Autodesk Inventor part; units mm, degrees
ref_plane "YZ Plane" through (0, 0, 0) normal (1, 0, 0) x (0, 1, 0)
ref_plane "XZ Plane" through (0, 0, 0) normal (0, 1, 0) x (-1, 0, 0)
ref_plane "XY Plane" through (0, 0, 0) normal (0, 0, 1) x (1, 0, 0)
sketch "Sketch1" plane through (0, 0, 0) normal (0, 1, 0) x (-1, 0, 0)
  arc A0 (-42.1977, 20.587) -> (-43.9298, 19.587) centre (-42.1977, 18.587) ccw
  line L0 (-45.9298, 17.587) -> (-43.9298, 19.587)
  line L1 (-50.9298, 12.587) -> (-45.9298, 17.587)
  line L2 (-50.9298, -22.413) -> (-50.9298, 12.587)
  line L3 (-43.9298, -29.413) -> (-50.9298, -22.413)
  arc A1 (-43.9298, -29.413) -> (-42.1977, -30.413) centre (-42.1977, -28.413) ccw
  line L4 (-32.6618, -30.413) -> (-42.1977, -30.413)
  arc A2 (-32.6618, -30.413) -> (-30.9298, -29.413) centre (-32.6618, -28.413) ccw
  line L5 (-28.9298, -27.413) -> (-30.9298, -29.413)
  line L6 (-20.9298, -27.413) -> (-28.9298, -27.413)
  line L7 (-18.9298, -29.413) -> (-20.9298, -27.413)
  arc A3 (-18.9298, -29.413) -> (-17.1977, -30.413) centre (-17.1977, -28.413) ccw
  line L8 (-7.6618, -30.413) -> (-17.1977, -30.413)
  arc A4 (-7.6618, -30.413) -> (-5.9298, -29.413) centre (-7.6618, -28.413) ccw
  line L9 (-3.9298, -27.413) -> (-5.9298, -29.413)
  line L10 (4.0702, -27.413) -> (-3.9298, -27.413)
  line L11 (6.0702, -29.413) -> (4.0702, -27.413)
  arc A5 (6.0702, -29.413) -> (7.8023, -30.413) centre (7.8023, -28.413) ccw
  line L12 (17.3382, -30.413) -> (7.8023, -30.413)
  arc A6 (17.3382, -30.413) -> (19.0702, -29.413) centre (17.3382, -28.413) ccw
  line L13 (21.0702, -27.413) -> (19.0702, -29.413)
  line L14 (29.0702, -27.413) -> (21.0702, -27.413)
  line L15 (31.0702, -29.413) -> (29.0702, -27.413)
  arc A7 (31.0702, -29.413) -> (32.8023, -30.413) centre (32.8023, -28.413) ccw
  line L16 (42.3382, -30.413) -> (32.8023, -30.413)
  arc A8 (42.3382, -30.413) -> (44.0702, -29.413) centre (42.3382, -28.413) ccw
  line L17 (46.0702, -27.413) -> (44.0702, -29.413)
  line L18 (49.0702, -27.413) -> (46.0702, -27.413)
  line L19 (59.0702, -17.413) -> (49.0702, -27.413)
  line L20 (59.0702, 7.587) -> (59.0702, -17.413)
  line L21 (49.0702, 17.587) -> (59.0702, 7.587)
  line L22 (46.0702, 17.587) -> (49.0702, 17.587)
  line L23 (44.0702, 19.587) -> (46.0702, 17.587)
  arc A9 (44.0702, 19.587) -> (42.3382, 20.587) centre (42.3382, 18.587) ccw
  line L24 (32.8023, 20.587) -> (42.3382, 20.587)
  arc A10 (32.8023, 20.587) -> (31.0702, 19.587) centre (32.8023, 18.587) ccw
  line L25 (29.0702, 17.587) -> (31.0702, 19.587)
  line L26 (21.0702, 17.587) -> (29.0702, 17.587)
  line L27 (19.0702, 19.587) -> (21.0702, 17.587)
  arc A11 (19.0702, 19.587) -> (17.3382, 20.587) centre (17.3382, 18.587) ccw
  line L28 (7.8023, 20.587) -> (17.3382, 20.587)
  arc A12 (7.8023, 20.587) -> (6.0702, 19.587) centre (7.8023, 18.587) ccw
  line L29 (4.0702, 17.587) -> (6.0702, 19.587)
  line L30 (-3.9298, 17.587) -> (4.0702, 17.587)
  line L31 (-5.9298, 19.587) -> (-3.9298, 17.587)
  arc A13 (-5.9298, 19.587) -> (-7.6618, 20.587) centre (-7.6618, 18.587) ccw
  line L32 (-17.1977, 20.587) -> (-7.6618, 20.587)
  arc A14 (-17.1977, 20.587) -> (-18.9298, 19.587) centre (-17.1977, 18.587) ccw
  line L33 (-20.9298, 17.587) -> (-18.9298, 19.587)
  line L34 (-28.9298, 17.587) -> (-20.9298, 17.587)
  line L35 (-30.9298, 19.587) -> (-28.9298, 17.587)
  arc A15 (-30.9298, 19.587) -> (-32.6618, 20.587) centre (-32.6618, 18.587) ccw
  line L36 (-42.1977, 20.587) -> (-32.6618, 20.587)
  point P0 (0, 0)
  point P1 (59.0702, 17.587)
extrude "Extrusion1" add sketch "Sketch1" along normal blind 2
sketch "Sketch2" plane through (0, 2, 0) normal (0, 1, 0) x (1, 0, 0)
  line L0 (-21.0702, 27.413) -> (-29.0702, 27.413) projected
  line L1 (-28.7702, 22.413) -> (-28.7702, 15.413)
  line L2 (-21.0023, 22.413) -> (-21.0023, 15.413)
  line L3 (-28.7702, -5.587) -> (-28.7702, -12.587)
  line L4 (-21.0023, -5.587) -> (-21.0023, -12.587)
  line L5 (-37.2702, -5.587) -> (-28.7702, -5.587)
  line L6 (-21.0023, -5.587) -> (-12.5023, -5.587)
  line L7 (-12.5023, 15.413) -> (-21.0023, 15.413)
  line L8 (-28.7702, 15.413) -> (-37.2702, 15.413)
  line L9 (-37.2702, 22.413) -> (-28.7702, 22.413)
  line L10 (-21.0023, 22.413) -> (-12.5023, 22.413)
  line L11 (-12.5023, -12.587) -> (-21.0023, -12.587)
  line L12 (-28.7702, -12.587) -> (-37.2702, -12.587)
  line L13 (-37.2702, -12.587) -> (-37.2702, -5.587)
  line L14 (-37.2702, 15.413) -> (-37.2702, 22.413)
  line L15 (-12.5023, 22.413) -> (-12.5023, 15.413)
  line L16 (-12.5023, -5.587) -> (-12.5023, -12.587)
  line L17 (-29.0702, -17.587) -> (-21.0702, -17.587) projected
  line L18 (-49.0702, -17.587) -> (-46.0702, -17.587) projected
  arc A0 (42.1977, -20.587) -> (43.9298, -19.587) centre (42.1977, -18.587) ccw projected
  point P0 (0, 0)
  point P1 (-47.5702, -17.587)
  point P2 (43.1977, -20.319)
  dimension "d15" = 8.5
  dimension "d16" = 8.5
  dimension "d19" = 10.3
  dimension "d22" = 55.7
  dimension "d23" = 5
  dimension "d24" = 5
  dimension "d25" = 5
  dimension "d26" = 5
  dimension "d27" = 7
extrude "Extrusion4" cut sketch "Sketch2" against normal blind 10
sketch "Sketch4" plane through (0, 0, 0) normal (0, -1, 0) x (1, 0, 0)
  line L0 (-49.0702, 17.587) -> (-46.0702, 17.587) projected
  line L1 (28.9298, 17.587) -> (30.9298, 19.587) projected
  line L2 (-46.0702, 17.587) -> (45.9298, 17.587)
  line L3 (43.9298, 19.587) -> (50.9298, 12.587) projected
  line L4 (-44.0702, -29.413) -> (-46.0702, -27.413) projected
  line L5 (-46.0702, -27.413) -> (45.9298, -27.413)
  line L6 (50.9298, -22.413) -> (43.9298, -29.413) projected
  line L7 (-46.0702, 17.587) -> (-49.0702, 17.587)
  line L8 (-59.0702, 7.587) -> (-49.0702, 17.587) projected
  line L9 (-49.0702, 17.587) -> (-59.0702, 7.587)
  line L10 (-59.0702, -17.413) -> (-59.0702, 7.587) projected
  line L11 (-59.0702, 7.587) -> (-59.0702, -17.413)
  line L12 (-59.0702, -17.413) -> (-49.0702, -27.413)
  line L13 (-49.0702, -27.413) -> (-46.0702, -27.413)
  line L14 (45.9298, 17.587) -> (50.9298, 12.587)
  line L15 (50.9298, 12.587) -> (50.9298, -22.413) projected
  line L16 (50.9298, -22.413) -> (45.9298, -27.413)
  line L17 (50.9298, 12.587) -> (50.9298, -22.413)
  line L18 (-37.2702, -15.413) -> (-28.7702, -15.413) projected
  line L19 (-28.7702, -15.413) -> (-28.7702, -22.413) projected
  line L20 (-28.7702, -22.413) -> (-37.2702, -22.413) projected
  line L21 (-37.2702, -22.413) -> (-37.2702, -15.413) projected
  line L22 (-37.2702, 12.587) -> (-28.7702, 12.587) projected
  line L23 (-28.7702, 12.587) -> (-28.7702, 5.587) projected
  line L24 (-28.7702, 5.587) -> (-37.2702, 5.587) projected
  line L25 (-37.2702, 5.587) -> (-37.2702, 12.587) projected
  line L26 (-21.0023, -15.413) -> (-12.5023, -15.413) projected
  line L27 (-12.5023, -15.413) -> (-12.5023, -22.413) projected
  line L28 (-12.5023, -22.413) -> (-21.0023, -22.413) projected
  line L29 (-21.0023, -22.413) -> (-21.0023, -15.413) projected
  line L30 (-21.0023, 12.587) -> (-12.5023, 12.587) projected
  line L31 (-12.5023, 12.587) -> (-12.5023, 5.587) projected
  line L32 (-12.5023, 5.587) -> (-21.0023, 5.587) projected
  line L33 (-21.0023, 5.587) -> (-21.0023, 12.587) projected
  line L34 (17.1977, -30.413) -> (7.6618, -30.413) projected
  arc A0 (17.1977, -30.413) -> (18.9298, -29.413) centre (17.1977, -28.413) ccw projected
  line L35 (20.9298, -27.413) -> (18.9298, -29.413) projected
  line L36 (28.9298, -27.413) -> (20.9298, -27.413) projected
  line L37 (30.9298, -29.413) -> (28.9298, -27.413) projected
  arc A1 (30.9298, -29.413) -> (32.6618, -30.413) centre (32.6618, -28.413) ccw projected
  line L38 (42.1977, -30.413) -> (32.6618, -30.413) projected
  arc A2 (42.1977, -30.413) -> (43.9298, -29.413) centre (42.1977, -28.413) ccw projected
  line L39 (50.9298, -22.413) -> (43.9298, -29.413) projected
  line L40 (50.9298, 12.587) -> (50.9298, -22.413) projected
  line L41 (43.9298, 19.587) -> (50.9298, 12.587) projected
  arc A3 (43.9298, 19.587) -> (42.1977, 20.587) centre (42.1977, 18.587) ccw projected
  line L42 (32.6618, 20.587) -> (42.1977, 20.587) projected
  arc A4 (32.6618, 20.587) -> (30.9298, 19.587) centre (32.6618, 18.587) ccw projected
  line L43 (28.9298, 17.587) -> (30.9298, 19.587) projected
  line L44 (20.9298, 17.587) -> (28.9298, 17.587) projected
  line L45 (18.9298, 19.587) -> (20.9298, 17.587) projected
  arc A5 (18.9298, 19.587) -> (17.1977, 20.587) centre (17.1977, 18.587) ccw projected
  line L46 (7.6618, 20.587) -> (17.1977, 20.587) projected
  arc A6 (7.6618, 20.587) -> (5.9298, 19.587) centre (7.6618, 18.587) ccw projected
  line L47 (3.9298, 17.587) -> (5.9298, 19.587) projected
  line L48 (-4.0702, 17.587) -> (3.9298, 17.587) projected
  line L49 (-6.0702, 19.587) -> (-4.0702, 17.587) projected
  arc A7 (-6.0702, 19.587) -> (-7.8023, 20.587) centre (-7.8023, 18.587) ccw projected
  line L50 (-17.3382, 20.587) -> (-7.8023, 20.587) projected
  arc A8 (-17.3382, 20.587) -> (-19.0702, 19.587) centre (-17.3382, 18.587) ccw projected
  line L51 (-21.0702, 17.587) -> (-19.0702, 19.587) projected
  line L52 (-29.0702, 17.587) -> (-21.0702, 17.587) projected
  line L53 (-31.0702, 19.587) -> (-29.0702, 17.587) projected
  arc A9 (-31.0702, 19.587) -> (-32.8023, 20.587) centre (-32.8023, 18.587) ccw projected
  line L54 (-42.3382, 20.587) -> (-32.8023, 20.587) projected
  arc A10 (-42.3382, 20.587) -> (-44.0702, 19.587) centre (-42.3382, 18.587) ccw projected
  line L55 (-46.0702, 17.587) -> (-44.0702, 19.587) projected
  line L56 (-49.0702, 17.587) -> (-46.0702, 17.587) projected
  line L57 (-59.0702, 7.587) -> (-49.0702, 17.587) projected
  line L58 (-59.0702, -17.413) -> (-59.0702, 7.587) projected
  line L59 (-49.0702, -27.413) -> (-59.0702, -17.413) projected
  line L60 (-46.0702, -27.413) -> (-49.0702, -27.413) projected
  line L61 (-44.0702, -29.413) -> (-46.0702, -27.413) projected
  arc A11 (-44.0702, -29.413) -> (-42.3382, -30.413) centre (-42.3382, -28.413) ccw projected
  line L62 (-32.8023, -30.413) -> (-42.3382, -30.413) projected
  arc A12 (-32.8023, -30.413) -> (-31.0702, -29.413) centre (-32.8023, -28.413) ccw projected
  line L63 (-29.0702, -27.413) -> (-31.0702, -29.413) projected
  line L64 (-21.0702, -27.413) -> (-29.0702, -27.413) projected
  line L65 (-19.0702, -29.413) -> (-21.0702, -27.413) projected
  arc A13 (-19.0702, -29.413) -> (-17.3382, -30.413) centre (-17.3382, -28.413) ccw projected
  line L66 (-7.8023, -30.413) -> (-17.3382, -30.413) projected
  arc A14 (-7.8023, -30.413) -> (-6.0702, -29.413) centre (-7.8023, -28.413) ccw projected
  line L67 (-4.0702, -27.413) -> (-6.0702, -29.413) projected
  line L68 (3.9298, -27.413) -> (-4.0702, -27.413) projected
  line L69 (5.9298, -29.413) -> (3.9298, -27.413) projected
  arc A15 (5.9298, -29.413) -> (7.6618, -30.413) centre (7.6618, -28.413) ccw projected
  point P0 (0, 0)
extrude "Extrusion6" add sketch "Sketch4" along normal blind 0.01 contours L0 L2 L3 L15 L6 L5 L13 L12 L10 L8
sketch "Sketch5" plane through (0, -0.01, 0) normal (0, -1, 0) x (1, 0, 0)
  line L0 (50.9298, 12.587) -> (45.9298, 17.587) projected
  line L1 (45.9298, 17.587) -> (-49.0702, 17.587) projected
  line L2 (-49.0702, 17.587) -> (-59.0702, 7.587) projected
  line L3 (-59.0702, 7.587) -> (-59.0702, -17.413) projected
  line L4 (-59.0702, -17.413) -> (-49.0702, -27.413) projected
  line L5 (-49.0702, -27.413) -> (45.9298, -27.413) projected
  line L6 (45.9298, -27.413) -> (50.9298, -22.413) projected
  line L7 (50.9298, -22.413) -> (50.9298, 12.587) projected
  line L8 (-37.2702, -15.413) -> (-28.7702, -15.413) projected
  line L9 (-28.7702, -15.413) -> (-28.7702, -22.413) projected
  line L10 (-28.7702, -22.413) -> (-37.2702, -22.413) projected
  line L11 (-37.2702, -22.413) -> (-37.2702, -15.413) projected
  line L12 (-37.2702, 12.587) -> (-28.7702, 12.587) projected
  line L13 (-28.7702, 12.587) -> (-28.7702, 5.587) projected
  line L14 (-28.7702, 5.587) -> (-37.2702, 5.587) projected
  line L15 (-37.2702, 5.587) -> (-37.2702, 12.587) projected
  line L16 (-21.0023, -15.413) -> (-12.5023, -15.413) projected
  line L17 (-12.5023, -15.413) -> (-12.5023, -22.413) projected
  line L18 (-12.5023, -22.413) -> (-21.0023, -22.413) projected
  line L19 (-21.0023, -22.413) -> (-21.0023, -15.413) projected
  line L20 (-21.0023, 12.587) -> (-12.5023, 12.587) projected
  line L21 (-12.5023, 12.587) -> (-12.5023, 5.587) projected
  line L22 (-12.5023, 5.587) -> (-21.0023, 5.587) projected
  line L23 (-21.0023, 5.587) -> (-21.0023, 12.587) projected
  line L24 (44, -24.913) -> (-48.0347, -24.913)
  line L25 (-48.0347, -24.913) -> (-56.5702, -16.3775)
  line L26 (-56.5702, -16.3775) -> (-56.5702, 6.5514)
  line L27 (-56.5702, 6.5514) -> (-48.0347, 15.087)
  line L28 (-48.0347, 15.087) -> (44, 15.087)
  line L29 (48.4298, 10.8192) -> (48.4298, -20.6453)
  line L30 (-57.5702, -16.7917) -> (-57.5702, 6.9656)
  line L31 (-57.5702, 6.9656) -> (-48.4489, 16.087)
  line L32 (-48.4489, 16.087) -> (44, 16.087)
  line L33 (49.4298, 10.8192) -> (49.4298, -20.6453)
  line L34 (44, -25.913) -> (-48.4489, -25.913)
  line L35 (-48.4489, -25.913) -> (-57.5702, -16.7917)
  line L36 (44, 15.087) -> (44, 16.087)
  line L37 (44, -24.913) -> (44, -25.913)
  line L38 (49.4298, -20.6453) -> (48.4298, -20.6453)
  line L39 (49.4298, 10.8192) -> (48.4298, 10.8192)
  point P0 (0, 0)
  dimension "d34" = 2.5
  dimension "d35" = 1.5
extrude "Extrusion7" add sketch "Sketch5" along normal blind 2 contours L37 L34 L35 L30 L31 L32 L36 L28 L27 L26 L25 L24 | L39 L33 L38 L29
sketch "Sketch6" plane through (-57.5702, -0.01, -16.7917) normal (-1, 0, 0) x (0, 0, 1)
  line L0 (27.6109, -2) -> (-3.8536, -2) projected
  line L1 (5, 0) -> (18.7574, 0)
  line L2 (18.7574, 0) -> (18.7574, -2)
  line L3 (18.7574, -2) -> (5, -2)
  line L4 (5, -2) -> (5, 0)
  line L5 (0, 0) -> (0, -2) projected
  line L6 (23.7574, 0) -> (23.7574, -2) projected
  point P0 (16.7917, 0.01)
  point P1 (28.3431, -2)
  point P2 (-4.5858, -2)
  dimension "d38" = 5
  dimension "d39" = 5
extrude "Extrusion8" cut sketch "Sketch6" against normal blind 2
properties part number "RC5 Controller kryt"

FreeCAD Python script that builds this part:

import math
import FreeCAD as App
import Part
import Sketcher
from FreeCAD import Vector
Q = App.Units.Quantity


def add_polygon(sketch, points):
    """Adds a closed chain of lines whose ends are joined by coincident constraints."""
    first, n = sketch.GeometryCount, len(points)
    for a, b in zip(points, points[1:] + points[:1]):
        sketch.addGeometry(Part.LineSegment(App.Vector(*a, 0), App.Vector(*b, 0)), False)
    for i in range(n):
        sketch.addConstraint(Sketcher.Constraint("Coincident", first + i, 2, first + (i + 1) % n, 1))

doc = App.newDocument("Part")
body = doc.addObject("PartDesign::Body", "Body")

sketch1 = body.newObject("Sketcher::SketchObject", "Sketch")
sketch1.AttachmentSupport = (doc.getObject("XZ_Plane"), [""])
sketch1.MapMode = "FlatFace"
sketch1.addGeometry(Part.LineSegment(Vector(32.7, 20.6, 0), Vector(42.2, 20.6, 0)), False)
sketch1.addGeometry(Part.ArcOfCircle(Part.Circle(Vector(42.2, 18.6, 0), Vector(0, 0, 1), 2), math.radians(30), math.radians(90)), False)
sketch1.addGeometry(Part.LineSegment(Vector(43.9, 19.6, 0), Vector(50.9, 12.6, 0)), False)
sketch1.addGeometry(Part.LineSegment(Vector(50.9, 12.6, 0), Vector(50.9, -22.4, 0)), False)
sketch1.addGeometry(Part.LineSegment(Vector(50.9, -22.4, 0), Vector(43.9, -29.4, 0)), False)
sketch1.addGeometry(Part.ArcOfCircle(Part.Circle(Vector(42.2, -28.4, 0), Vector(0, 0, 1), 2), math.radians(-90), math.radians(-30)), False)
sketch1.addGeometry(Part.LineSegment(Vector(42.2, -30.4, 0), Vector(32.7, -30.4, 0)), False)
sketch1.addGeometry(Part.ArcOfCircle(Part.Circle(Vector(32.7, -28.4, 0), Vector(0, 0, 1), 2), math.radians(-150), math.radians(-90)), False)
sketch1.addGeometry(Part.LineSegment(Vector(30.9, -29.4, 0), Vector(28.9, -27.4, 0)), False)
sketch1.addGeometry(Part.LineSegment(Vector(28.9, -27.4, 0), Vector(20.9, -27.4, 0)), False)
sketch1.addGeometry(Part.LineSegment(Vector(20.9, -27.4, 0), Vector(18.9, -29.4, 0)), False)
sketch1.addGeometry(Part.ArcOfCircle(Part.Circle(Vector(17.2, -28.4, 0), Vector(0, 0, 1), 2), math.radians(-90), math.radians(-30)), False)
sketch1.addGeometry(Part.LineSegment(Vector(17.2, -30.4, 0), Vector(7.7, -30.4, 0)), False)
sketch1.addGeometry(Part.ArcOfCircle(Part.Circle(Vector(7.7, -28.4, 0), Vector(0, 0, 1), 2), math.radians(-150), math.radians(-90)), False)
sketch1.addGeometry(Part.LineSegment(Vector(5.9, -29.4, 0), Vector(3.9, -27.4, 0)), False)
sketch1.addGeometry(Part.LineSegment(Vector(3.9, -27.4, 0), Vector(-4.1, -27.4, 0)), False)
sketch1.addGeometry(Part.LineSegment(Vector(-4.1, -27.4, 0), Vector(-6.1, -29.4, 0)), False)
sketch1.addGeometry(Part.ArcOfCircle(Part.Circle(Vector(-7.8, -28.4, 0), Vector(0, 0, 1), 2), math.radians(-90), math.radians(-30)), False)
sketch1.addGeometry(Part.LineSegment(Vector(-7.8, -30.4, 0), Vector(-17.3, -30.4, 0)), False)
sketch1.addGeometry(Part.ArcOfCircle(Part.Circle(Vector(-17.3, -28.4, 0), Vector(0, 0, 1), 2), math.radians(-150), math.radians(-90)), False)
sketch1.addGeometry(Part.LineSegment(Vector(-19.1, -29.4, 0), Vector(-21.1, -27.4, 0)), False)
sketch1.addGeometry(Part.LineSegment(Vector(-21.1, -27.4, 0), Vector(-29.1, -27.4, 0)), False)
sketch1.addGeometry(Part.LineSegment(Vector(-29.1, -27.4, 0), Vector(-31.1, -29.4, 0)), False)
sketch1.addGeometry(Part.ArcOfCircle(Part.Circle(Vector(-32.8, -28.4, 0), Vector(0, 0, 1), 2), math.radians(-90), math.radians(-30)), False)
sketch1.addGeometry(Part.LineSegment(Vector(-32.8, -30.4, 0), Vector(-42.3, -30.4, 0)), False)
sketch1.addGeometry(Part.ArcOfCircle(Part.Circle(Vector(-42.3, -28.4, 0), Vector(0, 0, 1), 2), math.radians(-150), math.radians(-90)), False)
sketch1.addGeometry(Part.LineSegment(Vector(-44.1, -29.4, 0), Vector(-46.1, -27.4, 0)), False)
sketch1.addGeometry(Part.LineSegment(Vector(-46.1, -27.4, 0), Vector(-49.1, -27.4, 0)), False)
sketch1.addGeometry(Part.LineSegment(Vector(-49.1, -27.4, 0), Vector(-59.1, -17.4, 0)), False)
sketch1.addGeometry(Part.LineSegment(Vector(-59.1, -17.4, 0), Vector(-59.1, 7.6, 0)), False)
sketch1.addGeometry(Part.LineSegment(Vector(-59.1, 7.6, 0), Vector(-49.1, 17.6, 0)), False)
sketch1.addGeometry(Part.LineSegment(Vector(-49.1, 17.6, 0), Vector(-46.1, 17.6, 0)), False)
sketch1.addGeometry(Part.LineSegment(Vector(-46.1, 17.6, 0), Vector(-44.1, 19.6, 0)), False)
sketch1.addGeometry(Part.ArcOfCircle(Part.Circle(Vector(-42.3, 18.6, 0), Vector(0, 0, 1), 2), math.radians(90), math.radians(150)), False)
sketch1.addGeometry(Part.LineSegment(Vector(-42.3, 20.6, 0), Vector(-32.8, 20.6, 0)), False)
sketch1.addGeometry(Part.ArcOfCircle(Part.Circle(Vector(-32.8, 18.6, 0), Vector(0, 0, 1), 2), math.radians(30), math.radians(90)), False)
sketch1.addGeometry(Part.LineSegment(Vector(-31.1, 19.6, 0), Vector(-29.1, 17.6, 0)), False)
sketch1.addGeometry(Part.LineSegment(Vector(-29.1, 17.6, 0), Vector(-21.1, 17.6, 0)), False)
sketch1.addGeometry(Part.LineSegment(Vector(-21.1, 17.6, 0), Vector(-19.1, 19.6, 0)), False)
sketch1.addGeometry(Part.ArcOfCircle(Part.Circle(Vector(-17.3, 18.6, 0), Vector(0, 0, 1), 2), math.radians(90), math.radians(150)), False)
sketch1.addGeometry(Part.LineSegment(Vector(-17.3, 20.6, 0), Vector(-7.8, 20.6, 0)), False)
sketch1.addGeometry(Part.ArcOfCircle(Part.Circle(Vector(-7.8, 18.6, 0), Vector(0, 0, 1), 2), math.radians(30), math.radians(90)), False)
sketch1.addGeometry(Part.LineSegment(Vector(-6.1, 19.6, 0), Vector(-4.1, 17.6, 0)), False)
sketch1.addGeometry(Part.LineSegment(Vector(-4.1, 17.6, 0), Vector(3.9, 17.6, 0)), False)
sketch1.addGeometry(Part.LineSegment(Vector(3.9, 17.6, 0), Vector(5.9, 19.6, 0)), False)
sketch1.addGeometry(Part.ArcOfCircle(Part.Circle(Vector(7.7, 18.6, 0), Vector(0, 0, 1), 2), math.radians(90), math.radians(150)), False)
sketch1.addGeometry(Part.LineSegment(Vector(7.7, 20.6, 0), Vector(17.2, 20.6, 0)), False)
sketch1.addGeometry(Part.ArcOfCircle(Part.Circle(Vector(17.2, 18.6, 0), Vector(0, 0, 1), 2), math.radians(30), math.radians(90)), False)
sketch1.addGeometry(Part.LineSegment(Vector(18.9, 19.6, 0), Vector(20.9, 17.6, 0)), False)
sketch1.addGeometry(Part.LineSegment(Vector(20.9, 17.6, 0), Vector(28.9, 17.6, 0)), False)
sketch1.addGeometry(Part.LineSegment(Vector(28.9, 17.6, 0), Vector(30.9, 19.6, 0)), False)
sketch1.addGeometry(Part.ArcOfCircle(Part.Circle(Vector(32.7, 18.6, 0), Vector(0, 0, 1), 2), math.radians(90), math.radians(150)), False)
sketch1.addConstraint(Sketcher.Constraint("Tangent", 0, 2, 1, 2))
sketch1.addConstraint(Sketcher.Constraint("Coincident", 1, 1, 2, 1))
sketch1.addConstraint(Sketcher.Constraint("Coincident", 2, 2, 3, 1))
sketch1.addConstraint(Sketcher.Constraint("Coincident", 3, 2, 4, 1))
sketch1.addConstraint(Sketcher.Constraint("Coincident", 4, 2, 5, 2))
sketch1.addConstraint(Sketcher.Constraint("Tangent", 5, 1, 6, 1))
sketch1.addConstraint(Sketcher.Constraint("Tangent", 6, 2, 7, 2))
sketch1.addConstraint(Sketcher.Constraint("Coincident", 7, 1, 8, 1))
sketch1.addConstraint(Sketcher.Constraint("Coincident", 8, 2, 9, 1))
sketch1.addConstraint(Sketcher.Constraint("Coincident", 9, 2, 10, 1))
sketch1.addConstraint(Sketcher.Constraint("Coincident", 10, 2, 11, 2))
sketch1.addConstraint(Sketcher.Constraint("Tangent", 11, 1, 12, 1))
sketch1.addConstraint(Sketcher.Constraint("Tangent", 12, 2, 13, 2))
sketch1.addConstraint(Sketcher.Constraint("Coincident", 13, 1, 14, 1))
sketch1.addConstraint(Sketcher.Constraint("Coincident", 14, 2, 15, 1))
sketch1.addConstraint(Sketcher.Constraint("Coincident", 15, 2, 16, 1))
sketch1.addConstraint(Sketcher.Constraint("Coincident", 16, 2, 17, 2))
sketch1.addConstraint(Sketcher.Constraint("Tangent", 17, 1, 18, 1))
sketch1.addConstraint(Sketcher.Constraint("Tangent", 18, 2, 19, 2))
sketch1.addConstraint(Sketcher.Constraint("Coincident", 19, 1, 20, 1))
sketch1.addConstraint(Sketcher.Constraint("Coincident", 20, 2, 21, 1))
sketch1.addConstraint(Sketcher.Constraint("Coincident", 21, 2, 22, 1))
sketch1.addConstraint(Sketcher.Constraint("Coincident", 22, 2, 23, 2))
sketch1.addConstraint(Sketcher.Constraint("Tangent", 23, 1, 24, 1))
sketch1.addConstraint(Sketcher.Constraint("Tangent", 24, 2, 25, 2))
sketch1.addConstraint(Sketcher.Constraint("Coincident", 25, 1, 26, 1))
sketch1.addConstraint(Sketcher.Constraint("Coincident", 26, 2, 27, 1))
sketch1.addConstraint(Sketcher.Constraint("Coincident", 27, 2, 28, 1))
sketch1.addConstraint(Sketcher.Constraint("Coincident", 28, 2, 29, 1))
sketch1.addConstraint(Sketcher.Constraint("Coincident", 29, 2, 30, 1))
sketch1.addConstraint(Sketcher.Constraint("Coincident", 30, 2, 31, 1))
sketch1.addConstraint(Sketcher.Constraint("Coincident", 31, 2, 32, 1))
sketch1.addConstraint(Sketcher.Constraint("Coincident", 32, 2, 33, 2))
sketch1.addConstraint(Sketcher.Constraint("Tangent", 33, 1, 34, 1))
sketch1.addConstraint(Sketcher.Constraint("Tangent", 34, 2, 35, 2))
sketch1.addConstraint(Sketcher.Constraint("Coincident", 35, 1, 36, 1))
sketch1.addConstraint(Sketcher.Constraint("Coincident", 36, 2, 37, 1))
sketch1.addConstraint(Sketcher.Constraint("Coincident", 37, 2, 38, 1))
sketch1.addConstraint(Sketcher.Constraint("Coincident", 38, 2, 39, 2))
sketch1.addConstraint(Sketcher.Constraint("Tangent", 39, 1, 40, 1))
sketch1.addConstraint(Sketcher.Constraint("Tangent", 40, 2, 41, 2))
sketch1.addConstraint(Sketcher.Constraint("Coincident", 41, 1, 42, 1))
sketch1.addConstraint(Sketcher.Constraint("Coincident", 42, 2, 43, 1))
sketch1.addConstraint(Sketcher.Constraint("Coincident", 43, 2, 44, 1))
sketch1.addConstraint(Sketcher.Constraint("Coincident", 44, 2, 45, 2))
sketch1.addConstraint(Sketcher.Constraint("Tangent", 45, 1, 46, 1))
sketch1.addConstraint(Sketcher.Constraint("Tangent", 46, 2, 47, 2))
sketch1.addConstraint(Sketcher.Constraint("Coincident", 47, 1, 48, 1))
sketch1.addConstraint(Sketcher.Constraint("Coincident", 48, 2, 49, 1))
sketch1.addConstraint(Sketcher.Constraint("Coincident", 49, 2, 50, 1))
sketch1.addConstraint(Sketcher.Constraint("Coincident", 50, 2, 51, 2))
sketch1.addConstraint(Sketcher.Constraint("Tangent", 51, 1, 0, 1))
sketch1.addConstraint(Sketcher.Constraint("Horizontal", 0))
sketch1.addConstraint(Sketcher.Constraint("Vertical", 3))
sketch1.addConstraint(Sketcher.Constraint("Horizontal", 6))
sketch1.addConstraint(Sketcher.Constraint("Horizontal", 9))
sketch1.addConstraint(Sketcher.Constraint("Horizontal", 12))
sketch1.addConstraint(Sketcher.Constraint("Horizontal", 15))
sketch1.addConstraint(Sketcher.Constraint("Horizontal", 18))
sketch1.addConstraint(Sketcher.Constraint("Horizontal", 21))
sketch1.addConstraint(Sketcher.Constraint("Horizontal", 24))
sketch1.addConstraint(Sketcher.Constraint("Horizontal", 27))
sketch1.addConstraint(Sketcher.Constraint("Vertical", 29))
sketch1.addConstraint(Sketcher.Constraint("Horizontal", 31))
sketch1.addConstraint(Sketcher.Constraint("Horizontal", 34))
sketch1.addConstraint(Sketcher.Constraint("Horizontal", 37))
sketch1.addConstraint(Sketcher.Constraint("Horizontal", 40))
sketch1.addConstraint(Sketcher.Constraint("Horizontal", 43))
sketch1.addConstraint(Sketcher.Constraint("Horizontal", 46))
sketch1.addConstraint(Sketcher.Constraint("Horizontal", 49))
sketch1.addConstraint(Sketcher.Constraint("Equal", 1, 5))
sketch1.addConstraint(Sketcher.Constraint("Equal", 5, 7))
sketch1.addConstraint(Sketcher.Constraint("Equal", 7, 11))
sketch1.addConstraint(Sketcher.Constraint("Equal", 11, 13))
sketch1.addConstraint(Sketcher.Constraint("Equal", 13, 17))
sketch1.addConstraint(Sketcher.Constraint("Equal", 17, 19))
sketch1.addConstraint(Sketcher.Constraint("Equal", 19, 23))
sketch1.addConstraint(Sketcher.Constraint("Equal", 23, 25))
sketch1.addConstraint(Sketcher.Constraint("Equal", 25, 33))
sketch1.addConstraint(Sketcher.Constraint("Equal", 33, 35))
sketch1.addConstraint(Sketcher.Constraint("Equal", 35, 39))
sketch1.addConstraint(Sketcher.Constraint("Equal", 39, 41))
sketch1.addConstraint(Sketcher.Constraint("Equal", 41, 45))
sketch1.addConstraint(Sketcher.Constraint("Equal", 45, 47))
sketch1.addConstraint(Sketcher.Constraint("Equal", 47, 51))
sketch1.addConstraint(Sketcher.Constraint("Perpendicular", 2, 4))
sketch1.addConstraint(Sketcher.Constraint("Perpendicular", 4, 8))
sketch1.addConstraint(Sketcher.Constraint("Perpendicular", 8, 10))
sketch1.addConstraint(Sketcher.Constraint("Perpendicular", 10, 14))
sketch1.addConstraint(Sketcher.Constraint("Perpendicular", 14, 16))
sketch1.addConstraint(Sketcher.Constraint("Perpendicular", 16, 20))
sketch1.addConstraint(Sketcher.Constraint("Perpendicular", 20, 22))
sketch1.addConstraint(Sketcher.Constraint("Perpendicular", 22, 26))
sketch1.addConstraint(Sketcher.Constraint("Parallel", 26, 28))
sketch1.addConstraint(Sketcher.Constraint("Perpendicular", 28, 30))
sketch1.addConstraint(Sketcher.Constraint("Parallel", 30, 32))
sketch1.addConstraint(Sketcher.Constraint("Perpendicular", 32, 36))
sketch1.addConstraint(Sketcher.Constraint("Perpendicular", 36, 38))
sketch1.addConstraint(Sketcher.Constraint("Perpendicular", 38, 42))
sketch1.addConstraint(Sketcher.Constraint("Perpendicular", 42, 44))
sketch1.addConstraint(Sketcher.Constraint("Perpendicular", 44, 48))
sketch1.addConstraint(Sketcher.Constraint("Perpendicular", 48, 50))
sketch1.addConstraint(Sketcher.Constraint("Horizontal", 7, 3, 11, 3))
sketch1.addConstraint(Sketcher.Constraint("Horizontal", 13, 3, 17, 3))
sketch1.addConstraint(Sketcher.Constraint("Horizontal", 19, 3, 23, 3))
sketch1.addConstraint(Sketcher.Constraint("Horizontal", 1, 3, 33, 3))
sketch1.addConstraint(Sketcher.Constraint("Horizontal", 35, 3, 39, 3))
sketch1.addConstraint(Sketcher.Constraint("Horizontal", 41, 3, 45, 3))
sketch1.addConstraint(Sketcher.Constraint("Horizontal", 4, 2, 7, 1))
sketch1.addConstraint(Sketcher.Constraint("Horizontal", 7, 1, 10, 2))
sketch1.addConstraint(Sketcher.Constraint("Horizontal", 10, 2, 13, 1))
sketch1.addConstraint(Sketcher.Constraint("Horizontal", 9, 2, 14, 2))
sketch1.addConstraint(Sketcher.Constraint("Horizontal", 13, 1, 16, 2))
sketch1.addConstraint(Sketcher.Constraint("Horizontal", 16, 2, 19, 1))
sketch1.addConstraint(Sketcher.Constraint("Horizontal", 15, 2, 20, 2))
sketch1.addConstraint(Sketcher.Constraint("Horizontal", 19, 1, 22, 2))
sketch1.addConstraint(Sketcher.Constraint("Horizontal", 22, 2, 25, 1))
sketch1.addConstraint(Sketcher.Constraint("Horizontal", 21, 2, 26, 2))
sketch1.addConstraint(Sketcher.Constraint("Horizontal", 1, 1, 32, 2))
sketch1.addConstraint(Sketcher.Constraint("Horizontal", 32, 2, 35, 1))
sketch1.addConstraint(Sketcher.Constraint("Horizontal", 31, 2, 36, 2))
sketch1.addConstraint(Sketcher.Constraint("Horizontal", 35, 1, 38, 2))
sketch1.addConstraint(Sketcher.Constraint("Horizontal", 38, 2, 41, 1))
sketch1.addConstraint(Sketcher.Constraint("Horizontal", 37, 2, 42, 2))
sketch1.addConstraint(Sketcher.Constraint("Horizontal", 41, 1, 44, 2))
sketch1.addConstraint(Sketcher.Constraint("Horizontal", 44, 2, 47, 1))
sketch1.addConstraint(Sketcher.Constraint("Horizontal", 43, 2, 48, 2))
sketch1.addConstraint(Sketcher.Constraint("Horizontal", 47, 1, 50, 2))
sketch1.addConstraint(Sketcher.Constraint("Vertical", 1, 3, 5, 3))
sketch1.addConstraint(Sketcher.Constraint("Vertical", 25, 3, 33, 3))
sketch1.addConstraint(Sketcher.Constraint("Vertical", 23, 3, 35, 3))
sketch1.addConstraint(Sketcher.Constraint("Vertical", 19, 3, 39, 3))
sketch1.addConstraint(Sketcher.Constraint("Vertical", 17, 3, 41, 3))
sketch1.addConstraint(Sketcher.Constraint("Vertical", 13, 3, 45, 3))
sketch1.addConstraint(Sketcher.Constraint("Vertical", 11, 3, 47, 3))
sketch1.addConstraint(Sketcher.Constraint("Vertical", 7, 3, 51, 3))
sketch1.addConstraint(Sketcher.Constraint("Vertical", 1, 1, 4, 2))
sketch1.addConstraint(Sketcher.Constraint("Vertical", 27, 2, 30, 2))
sketch1.addConstraint(Sketcher.Constraint("Vertical", 26, 2, 31, 2))
sketch1.addConstraint(Sketcher.Constraint("Vertical", 21, 2, 36, 2))
sketch1.addConstraint(Sketcher.Constraint("Equal", 6, 12))
sketch1.addConstraint(Sketcher.Constraint("Equal", 9, 15))
sketch1.addConstraint(Sketcher.Constraint("Equal", 12, 18))
sketch1.addConstraint(Sketcher.Constraint("Equal", 15, 21))
sketch1.addConstraint(Sketcher.Constraint("Equal", 18, 24))
sketch1.addConstraint(Sketcher.Constraint("Radius", 1, Q("2 mm")))
sketch1.addConstraint(Sketcher.Constraint("DistanceX", 9, 2, 9, 1, Q("8 mm")))
sketch1.addConstraint(Sketcher.Constraint("DistanceX", 27, 2, 27, 1, Q("3 mm")))
sketch1.addConstraint(Sketcher.Constraint("DistanceY", 3, 2, 3, 1, Q("35 mm")))
sketch1.addConstraint(Sketcher.Constraint("DistanceY", 29, 1, 29, 2, Q("25 mm")))
sketch1.addConstraint(Sketcher.Constraint("DistanceX", 0, 1, 0, 2, Q("9.536 mm")))
sketch1.addConstraint(Sketcher.Constraint("DistanceY", -1, 1, 1, 3, Q("18.587 mm")))
sketch1.addConstraint(Sketcher.Constraint("DistanceY", 5, 3, -1, 1, Q("28.413 mm")))
sketch1.addConstraint(Sketcher.Constraint("DistanceY", -1, 1, 1, 1, Q("19.587 mm")))
sketch1.addConstraint(Sketcher.Constraint("DistanceY", 8, 2, -1, 1, Q("27.413 mm")))
sketch1.addConstraint(Sketcher.Constraint("DistanceX", -1, 1, 1, 3, Q("42.1977 mm")))
pad1 = body.newObject("PartDesign::Pad", "Pad")
pad1.Profile = sketch1
pad1.Length = 2
pad1.Reversed = True

sketch2 = body.newObject("Sketcher::SketchObject", "Sketch001")
sketch2.AttachmentSupport = (doc.getObject("XZ_Plane"), [""])
sketch2.MapMode = "FlatFace"
sketch2.AttachmentOffset = App.Placement(Vector(0, 0, -2), App.Rotation())
add_polygon(sketch2, [(-29, -15), (-29, -22), (-37, -22), (-37, -15)])
add_polygon(sketch2, [(-13, -22), (-21, -22), (-21, -15), (-13, -15)])
add_polygon(sketch2, [(-29, 13), (-29, 6), (-37, 6), (-37, 13)])
add_polygon(sketch2, [(-13, 6), (-21, 6), (-21, 13), (-13, 13)])
sketch2.addConstraint(Sketcher.Constraint("Vertical", 0))
sketch2.addConstraint(Sketcher.Constraint("Horizontal", 1))
sketch2.addConstraint(Sketcher.Constraint("Vertical", 2))
sketch2.addConstraint(Sketcher.Constraint("Horizontal", 3))
sketch2.addConstraint(Sketcher.Constraint("Horizontal", 4))
sketch2.addConstraint(Sketcher.Constraint("Vertical", 5))
sketch2.addConstraint(Sketcher.Constraint("Horizontal", 6))
sketch2.addConstraint(Sketcher.Constraint("Vertical", 7))
sketch2.addConstraint(Sketcher.Constraint("Vertical", 8))
sketch2.addConstraint(Sketcher.Constraint("Horizontal", 9))
sketch2.addConstraint(Sketcher.Constraint("Vertical", 10))
sketch2.addConstraint(Sketcher.Constraint("Horizontal", 11))
sketch2.addConstraint(Sketcher.Constraint("Horizontal", 12))
sketch2.addConstraint(Sketcher.Constraint("Vertical", 13))
sketch2.addConstraint(Sketcher.Constraint("Horizontal", 14))
sketch2.addConstraint(Sketcher.Constraint("Vertical", 15))
sketch2.addConstraint(Sketcher.Constraint("Horizontal", 1, 2, 4, 2))
sketch2.addConstraint(Sketcher.Constraint("Horizontal", 3, 2, 5, 2))
sketch2.addConstraint(Sketcher.Constraint("Horizontal", 9, 2, 12, 2))
sketch2.addConstraint(Sketcher.Constraint("Horizontal", 11, 2, 13, 2))
sketch2.addConstraint(Sketcher.Constraint("Vertical", 3, 2, 8, 2))
sketch2.addConstraint(Sketcher.Constraint("Vertical", 2, 2, 9, 2))
sketch2.addConstraint(Sketcher.Constraint("Vertical", 5, 2, 12, 2))
sketch2.addConstraint(Sketcher.Constraint("Vertical", 7, 2, 14, 2))
sketch2.addConstraint(Sketcher.Constraint("Equal", 3, 4))
sketch2.addConstraint(Sketcher.Constraint("Equal", 7, 8))
sketch2.addConstraint(Sketcher.Constraint("DistanceY", 0, 2, 0, 1, Q("7 mm")))
sketch2.addConstraint(Sketcher.Constraint("DistanceX", 1, 2, 1, 1, Q("8.5 mm")))
sketch2.addConstraint(Sketcher.Constraint("DistanceY", 3, 2, 8, 2, Q("21 mm")))
sketch2.addConstraint(Sketcher.Constraint("DistanceY", 0, 2, -1, 1, Q("22.413 mm")))
sketch2.addConstraint(Sketcher.Constraint("DistanceX", 0, 2, 4, 2, Q("7.768 mm")))
sketch2.addConstraint(Sketcher.Constraint("DistanceX", 0, 2, -1, 1, Q("28.7702 mm")))
pocket1 = body.newObject("PartDesign::Pocket", "Pocket")
pocket1.Profile = sketch2
pocket1.Length = 10
pocket1.Reversed = True

sketch3 = body.newObject("Sketcher::SketchObject", "Sketch002")
sketch3.AttachmentSupport = (doc.getObject("XZ_Plane"), [""])
sketch3.MapMode = "FlatFace"
add_polygon(sketch3, [(46, 18), (-49, 18), (-59, 8), (-59, -17), (-49, -27), (46, -27), (51, -22), (51, 13)])
add_polygon(sketch3, [(-37, -22), (-37, -15), (-29, -15), (-29, -22)])
add_polygon(sketch3, [(-21, -22), (-21, -15), (-13, -15), (-13, -22)])
add_polygon(sketch3, [(-37, 6), (-37, 13), (-29, 13), (-29, 6)])
add_polygon(sketch3, [(-21, 6), (-21, 13), (-13, 13), (-13, 6)])
sketch3.addConstraint(Sketcher.Constraint("Horizontal", 0))
sketch3.addConstraint(Sketcher.Constraint("Vertical", 2))
sketch3.addConstraint(Sketcher.Constraint("Horizontal", 4))
sketch3.addConstraint(Sketcher.Constraint("Vertical", 6))
sketch3.addConstraint(Sketcher.Constraint("Vertical", 8))
sketch3.addConstraint(Sketcher.Constraint("Horizontal", 9))
sketch3.addConstraint(Sketcher.Constraint("Vertical", 10))
sketch3.addConstraint(Sketcher.Constraint("Horizontal", 11))
sketch3.addConstraint(Sketcher.Constraint("Vertical", 12))
sketch3.addConstraint(Sketcher.Constraint("Horizontal", 13))
sketch3.addConstraint(Sketcher.Constraint("Vertical", 14))
sketch3.addConstraint(Sketcher.Constraint("Horizontal", 15))
sketch3.addConstraint(Sketcher.Constraint("Vertical", 16))
sketch3.addConstraint(Sketcher.Constraint("Horizontal", 17))
sketch3.addConstraint(Sketcher.Constraint("Vertical", 18))
sketch3.addConstraint(Sketcher.Constraint("Horizontal", 19))
sketch3.addConstraint(Sketcher.Constraint("Vertical", 20))
sketch3.addConstraint(Sketcher.Constraint("Horizontal", 21))
sketch3.addConstraint(Sketcher.Constraint("Vertical", 22))
sketch3.addConstraint(Sketcher.Constraint("Horizontal", 23))
sketch3.addConstraint(Sketcher.Constraint("Perpendicular", 1, 3))
sketch3.addConstraint(Sketcher.Constraint("Perpendicular", 3, 5))
sketch3.addConstraint(Sketcher.Constraint("Perpendicular", 5, 7))
sketch3.addConstraint(Sketcher.Constraint("Horizontal", 5, 2, 10, 2))
sketch3.addConstraint(Sketcher.Constraint("Horizontal", 9, 2, 12, 2))
sketch3.addConstraint(Sketcher.Constraint("Horizontal", 11, 2, 14, 2))
sketch3.addConstraint(Sketcher.Constraint("Horizontal", 6, 2, 16, 2))
sketch3.addConstraint(Sketcher.Constraint("Horizontal", 17, 2, 20, 2))
sketch3.addConstraint(Sketcher.Constraint("Horizontal", 19, 2, 22, 2))
sketch3.addConstraint(Sketcher.Constraint("Vertical", 0, 2, 3, 2))
sketch3.addConstraint(Sketcher.Constraint("Vertical", 4, 2, 7, 2))
sketch3.addConstraint(Sketcher.Constraint("Vertical", 11, 2, 16, 2))
sketch3.addConstraint(Sketcher.Constraint("Vertical", 10, 2, 17, 2))
sketch3.addConstraint(Sketcher.Constraint("Vertical", 15, 2, 20, 2))
sketch3.addConstraint(Sketcher.Constraint("Vertical", 14, 2, 21, 2))
sketch3.addConstraint(Sketcher.Constraint("Equal", 11, 13))
sketch3.addConstraint(Sketcher.Constraint("Equal", 14, 16))
sketch3.addConstraint(Sketcher.Constraint("Equal", 1, 3))
sketch3.addConstraint(Sketcher.Constraint("DistanceX", 0, 2, 0, 1, Q("95 mm")))
sketch3.addConstraint(Sketcher.Constraint("DistanceY", 2, 2, 2, 1, Q("25 mm")))
sketch3.addConstraint(Sketcher.Constraint("DistanceY", 6, 1, 6, 2, Q("35 mm")))
sketch3.addConstraint(Sketcher.Constraint("DistanceY", 8, 1, 8, 2, Q("7 mm")))
sketch3.addConstraint(Sketcher.Constraint("DistanceX", 9, 1, 9, 2, Q("8.5 mm")))
sketch3.addConstraint(Sketcher.Constraint("DistanceX", 1, 2, 0, 2, Q("10 mm")))
sketch3.addConstraint(Sketcher.Constraint("DistanceX", 3, 2, 8, 2, Q("11.8 mm")))
sketch3.addConstraint(Sketcher.Constraint("DistanceY", -1, 1, 0, 2, Q("17.587 mm")))
sketch3.addConstraint(Sketcher.Constraint("DistanceX", 9, 2, 12, 2, Q("7.768 mm")))
sketch3.addConstraint(Sketcher.Constraint("DistanceX", 0, 2, -1, 1, Q("49.0702 mm")))
pad2 = body.newObject("PartDesign::Pad", "Pad001")
pad2.Profile = sketch3
pad2.Length = 0.01

sketch4 = body.newObject("Sketcher::SketchObject", "Sketch003")
sketch4.AttachmentSupport = (doc.getObject("XZ_Plane"), [""])
sketch4.MapMode = "FlatFace"
sketch4.AttachmentOffset = App.Placement(Vector(0, 0, 0.01), App.Rotation())
add_polygon(sketch4, [(44, -25.9), (44, -24.9), (-48, -24.9), (-56.6, -16.4), (-56.6, 6.6), (-48, 15.1), (44, 15.1), (44, 16.1), (-48.4, 16.1), (-57.6, 7), (-57.6, -16.8), (-48.4, -25.9)])
add_polygon(sketch4, [(49.4, 10.8), (48.4, 10.8), (48.4, -20.6), (49.4, -20.6)])
sketch4.addConstraint(Sketcher.Constraint("Vertical", 0))
sketch4.addConstraint(Sketcher.Constraint("Horizontal", 1))
sketch4.addConstraint(Sketcher.Constraint("Vertical", 3))
sketch4.addConstraint(Sketcher.Constraint("Horizontal", 5))
sketch4.addConstraint(Sketcher.Constraint("Vertical", 6))
sketch4.addConstraint(Sketcher.Constraint("Horizontal", 7))
sketch4.addConstraint(Sketcher.Constraint("Vertical", 9))
sketch4.addConstraint(Sketcher.Constraint("Horizontal", 11))
sketch4.addConstraint(Sketcher.Constraint("Horizontal", 12))
sketch4.addConstraint(Sketcher.Constraint("Vertical", 13))
sketch4.addConstraint(Sketcher.Constraint("Horizontal", 14))
sketch4.addConstraint(Sketcher.Constraint("Vertical", 15))
sketch4.addConstraint(Sketcher.Constraint("Perpendicular", 2, 4))
sketch4.addConstraint(Sketcher.Constraint("Parallel", 4, 8))
sketch4.addConstraint(Sketcher.Constraint("Perpendicular", 8, 10))
sketch4.addConstraint(Sketcher.Constraint("Vertical", 1, 2, 4, 2))
sketch4.addConstraint(Sketcher.Constraint("Vertical", 0, 2, 5, 2))
sketch4.addConstraint(Sketcher.Constraint("Vertical", 7, 2, 10, 2))
sketch4.addConstraint(Sketcher.Constraint("Equal", 14, 0))
sketch4.addConstraint(Sketcher.Constraint("Equal", 0, 6))
sketch4.addConstraint(Sketcher.Constraint("Equal", 2, 4))
sketch4.addConstraint(Sketcher.Constraint("DistanceX", 12, 2, 12, 1, Q("1 mm")))
sketch4.addConstraint(Sketcher.Constraint("DistanceX", -1, 1, 0, 2, Q("44 mm")))
sketch4.addConstraint(Sketcher.Constraint("DistanceY", 1, 2, 4, 2, Q("40 mm")))
sketch4.addConstraint(Sketcher.Constraint("DistanceX", 8, 2, 3, 2, Q("1 mm")))
sketch4.addConstraint(Sketcher.Constraint("DistanceX", 7, 2, 7, 1, Q("92.449 mm")))
sketch4.addConstraint(Sketcher.Constraint("DistanceY", 3, 1, 3, 2, Q("22.929 mm")))
sketch4.addConstraint(Sketcher.Constraint("DistanceX", 1, 2, 1, 1, Q("92.0347 mm")))
sketch4.addConstraint(Sketcher.Constraint("DistanceY", 13, 2, 13, 1, Q("31.4645 mm")))
sketch4.addConstraint(Sketcher.Constraint("DistanceY", 0, 2, -1, 1, Q("24.913 mm")))
sketch4.addConstraint(Sketcher.Constraint("DistanceX", -1, 1, 12, 2, Q("48.4298 mm")))
sketch4.addConstraint(Sketcher.Constraint("DistanceY", -1, 1, 12, 2, Q("10.8192 mm")))
pad3 = body.newObject("PartDesign::Pad", "Pad002")
pad3.Profile = sketch4
pad3.Length = 2

sketch5 = body.newObject("Sketcher::SketchObject", "Sketch004")
sketch5.AttachmentSupport = (doc.getObject("YZ_Plane"), [""])
sketch5.MapMode = "FlatFace"
sketch5.AttachmentOffset = App.Placement(Vector(0, 0, -57.5702), App.Rotation())
add_polygon(sketch5, [(-2, -11.8), (-2, 2), (0, 2), (0, -11.8)])
sketch5.addConstraint(Sketcher.Constraint("Vertical", 0))
sketch5.addConstraint(Sketcher.Constraint("Horizontal", 1))
sketch5.addConstraint(Sketcher.Constraint("Vertical", 2))
sketch5.addConstraint(Sketcher.Constraint("Horizontal", 3))
sketch5.addConstraint(Sketcher.Constraint("DistanceX", 1, 1, 1, 2, Q("2 mm")))
sketch5.addConstraint(Sketcher.Constraint("DistanceX", 0, 2, -1, 1, Q("2.01 mm")))
sketch5.addConstraint(Sketcher.Constraint("DistanceY", 0, 1, 0, 2, Q("13.7574 mm")))
sketch5.addConstraint(Sketcher.Constraint("DistanceY", -1, 1, 0, 2, Q("1.9657 mm")))
pocket2 = body.newObject("PartDesign::Pocket", "Pocket001")
pocket2.Profile = sketch5
pocket2.Length = 2
pocket2.Reversed = True

doc.recompute()
